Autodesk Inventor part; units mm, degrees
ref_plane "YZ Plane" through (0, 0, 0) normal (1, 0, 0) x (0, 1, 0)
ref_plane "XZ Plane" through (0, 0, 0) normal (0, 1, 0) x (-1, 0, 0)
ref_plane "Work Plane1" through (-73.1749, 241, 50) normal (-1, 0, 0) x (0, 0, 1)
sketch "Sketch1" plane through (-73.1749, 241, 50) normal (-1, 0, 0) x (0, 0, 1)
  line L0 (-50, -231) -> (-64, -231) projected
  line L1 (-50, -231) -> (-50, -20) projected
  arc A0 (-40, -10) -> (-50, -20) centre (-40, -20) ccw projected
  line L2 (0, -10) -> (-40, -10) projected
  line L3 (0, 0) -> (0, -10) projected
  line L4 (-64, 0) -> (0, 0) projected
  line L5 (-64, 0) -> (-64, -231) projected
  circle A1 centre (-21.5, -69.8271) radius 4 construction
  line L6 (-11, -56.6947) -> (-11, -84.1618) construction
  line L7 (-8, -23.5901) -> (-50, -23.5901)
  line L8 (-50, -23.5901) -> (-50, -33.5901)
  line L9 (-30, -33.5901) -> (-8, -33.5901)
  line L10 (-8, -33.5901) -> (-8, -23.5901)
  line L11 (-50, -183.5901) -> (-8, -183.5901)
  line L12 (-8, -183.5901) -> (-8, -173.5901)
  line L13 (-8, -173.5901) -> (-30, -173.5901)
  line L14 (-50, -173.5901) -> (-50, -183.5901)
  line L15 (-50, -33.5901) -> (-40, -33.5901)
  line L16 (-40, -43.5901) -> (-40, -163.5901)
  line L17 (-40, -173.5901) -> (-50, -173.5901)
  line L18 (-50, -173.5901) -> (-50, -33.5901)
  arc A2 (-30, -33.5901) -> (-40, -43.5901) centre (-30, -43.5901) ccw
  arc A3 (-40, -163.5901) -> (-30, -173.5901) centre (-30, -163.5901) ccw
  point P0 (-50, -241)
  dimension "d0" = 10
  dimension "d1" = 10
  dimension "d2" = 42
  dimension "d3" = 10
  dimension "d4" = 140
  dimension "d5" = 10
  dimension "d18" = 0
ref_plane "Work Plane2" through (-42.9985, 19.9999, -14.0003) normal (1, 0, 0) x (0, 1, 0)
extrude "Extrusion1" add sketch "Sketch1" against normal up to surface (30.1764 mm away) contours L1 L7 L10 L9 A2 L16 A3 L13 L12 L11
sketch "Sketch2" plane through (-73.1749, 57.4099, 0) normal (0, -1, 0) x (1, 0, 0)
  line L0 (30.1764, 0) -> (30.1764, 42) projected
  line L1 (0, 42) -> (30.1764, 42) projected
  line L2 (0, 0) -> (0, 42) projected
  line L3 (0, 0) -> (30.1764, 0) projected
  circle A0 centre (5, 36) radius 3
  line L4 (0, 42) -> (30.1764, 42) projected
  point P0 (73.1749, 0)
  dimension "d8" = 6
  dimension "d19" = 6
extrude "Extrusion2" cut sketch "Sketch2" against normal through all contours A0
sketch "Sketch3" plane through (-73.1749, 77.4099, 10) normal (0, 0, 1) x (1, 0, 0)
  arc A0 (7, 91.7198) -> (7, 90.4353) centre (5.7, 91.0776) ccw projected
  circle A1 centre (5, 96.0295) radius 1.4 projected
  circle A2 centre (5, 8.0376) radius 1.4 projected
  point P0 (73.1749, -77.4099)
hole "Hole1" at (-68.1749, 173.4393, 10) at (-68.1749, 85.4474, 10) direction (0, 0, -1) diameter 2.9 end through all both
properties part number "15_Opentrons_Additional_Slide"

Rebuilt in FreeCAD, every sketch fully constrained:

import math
import FreeCAD as App
import Part
import Sketcher

V = App.Vector
Q = App.Units.Quantity

doc = App.newDocument("Part")
params = doc.addObject("Spreadsheet::Sheet", "Params")
for row, (alias, value) in enumerate([
    ("sketch1_radius", "10 mm"),
    ("sketch1_width", "10 mm"),
    ("sketch1_height", "42 mm"),
    ("pad1_length", "30.1764 mm"),
    ("sketch2_diameter", "6 mm"),
    ("sketch3_diameter", "2.9 mm"),
    ("hole_diameter", "2.9 mm"),
], start=1):
    params.set(f"A{row}", alias)
    params.set(f"B{row}", "=" + value)
    params.setAlias(f"B{row}", alias)

body = doc.addObject("PartDesign::Body", "Body")

sketch1 = body.newObject("Sketcher::SketchObject", "Sketch")
sketch1.AttachmentSupport = (doc.getObject("YZ_Plane"), [""])
sketch1.MapMode = "FlatFace"
sketch1.AttachmentOffset = App.Placement(V(0, 0, -73.1749), App.Rotation())
sketch1.addGeometry([
    Part.LineSegment(V(217, 0, 0), V(57, 0, 0)),
    Part.LineSegment(V(57, 0, 0), V(57, 42, 0)),
    Part.LineSegment(V(57, 42, 0), V(67, 42, 0)),
    Part.LineSegment(V(67, 42, 0), V(67, 20, 0)),
    Part.ArcOfCircle(Part.Circle(V(77, 20, 0), V(0, 0, 1), 10), math.radians(180), math.radians(270)),
    Part.LineSegment(V(77, 10, 0), V(197, 10, 0)),
    Part.ArcOfCircle(Part.Circle(V(197, 20, 0), V(0, 0, 1), 10), math.radians(-90), math.radians(0)),
    Part.LineSegment(V(207, 20, 0), V(207, 42, 0)),
    Part.LineSegment(V(207, 42, 0), V(217, 42, 0)),
    Part.LineSegment(V(217, 42, 0), V(217, 0, 0)),
], False)
sketch1.addConstraint([
    Sketcher.Constraint("Coincident", 0, 2, 1, 1),
    Sketcher.Constraint("Coincident", 1, 2, 2, 1),
    Sketcher.Constraint("Coincident", 2, 2, 3, 1),
    Sketcher.Constraint("Tangent", 3, 2, 4, 1),
    Sketcher.Constraint("Tangent", 4, 2, 5, 1),
    Sketcher.Constraint("Tangent", 5, 2, 6, 1),
    Sketcher.Constraint("Tangent", 6, 2, 7, 1),
    Sketcher.Constraint("Coincident", 7, 2, 8, 1),
    Sketcher.Constraint("Coincident", 8, 2, 9, 1),
    Sketcher.Constraint("Coincident", 9, 2, 0, 1),
    Sketcher.Constraint("Horizontal", 0),
    Sketcher.Constraint("Vertical", 1),
    Sketcher.Constraint("Horizontal", 2),
    Sketcher.Constraint("Vertical", 3),
    Sketcher.Constraint("Horizontal", 5),
    Sketcher.Constraint("Vertical", 7),
    Sketcher.Constraint("Horizontal", 8),
    Sketcher.Constraint("Vertical", 9),
    Sketcher.Constraint("Equal", 4, 6),
    Sketcher.Constraint("PointOnObject", 0, 2, -1),
    Sketcher.Constraint("Horizontal", 2, 2, 7, 2),
    Sketcher.Constraint("Equal", 2, 8),
    Sketcher.Constraint("Radius", 4, Q("10 mm")),
    Sketcher.Constraint("DistanceX", 2, 1, 2, 2, Q("10 mm")),
    Sketcher.Constraint("DistanceY", 1, 1, 1, 2, Q("42 mm")),
    Sketcher.Constraint("DistanceY", -1, 1, 4, 2, Q("10 mm")),
    Sketcher.Constraint("DistanceX", 0, 2, 6, 3, Q("140 mm")),
    Sketcher.Constraint("DistanceX", -1, 1, 4, 3, Q("77.41 mm")),
])
sketch1.setExpression("Constraints[22]", "Params.sketch1_radius")
sketch1.setExpression("Constraints[23]", "Params.sketch1_width")
sketch1.setExpression("Constraints[24]", "Params.sketch1_height")
pad1 = body.newObject("PartDesign::Pad", "Pad")
pad1.Profile = sketch1
pad1.setExpression("Length", "Params.pad1_length")

sketch2 = body.newObject("Sketcher::SketchObject", "Sketch001")
sketch2.AttachmentSupport = (doc.getObject("XZ_Plane"), [""])
sketch2.MapMode = "FlatFace"
sketch2.AttachmentOffset = App.Placement(V(0, 0, -57.4099), App.Rotation())
sketch2.addGeometry(Part.Circle(V(-68.2, 36, 0), V(0, 0, 1), 3), False)
sketch2.addConstraint([
    Sketcher.Constraint("Diameter", 0, Q("6 mm")),
    Sketcher.Constraint("DistanceY", -1, 1, 0, 3, Q("36 mm")),
    Sketcher.Constraint("DistanceX", 0, 3, -1, 1, Q("68.175 mm")),
])
sketch2.setExpression("Constraints[0]", "Params.sketch2_diameter")
pocket1 = body.newObject("PartDesign::Pocket", "Pocket")
pocket1.Profile = sketch2
pocket1.Type = "ThroughAll"

sketch3 = body.newObject("Sketcher::SketchObject", "Sketch002")
sketch3.AttachmentSupport = (doc.getObject("XY_Plane"), [""])
sketch3.MapMode = "FlatFace"
sketch3.AttachmentOffset = App.Placement(V(0, 0, 10), App.Rotation())
sketch3.addGeometry([
    Part.Circle(V(-68.2, 173.4, 0), V(0, 0, 1), 1.4),
    Part.Circle(V(-68.2, 85.4, 0), V(0, 0, 1), 1.4),
], False)
sketch3.addConstraint([
    Sketcher.Constraint("Equal", 0, 1),
    Sketcher.Constraint("Vertical", 0, 3, 1, 3),
    Sketcher.Constraint("Diameter", 0, Q("2.9 mm")),
    Sketcher.Constraint("DistanceX", 0, 3, -1, 1, Q("68.175 mm")),
    Sketcher.Constraint("DistanceY", 1, 3, 0, 3, Q("87.992 mm")),
    Sketcher.Constraint("DistanceY", -1, 1, 0, 3, Q("173.4393 mm")),
])
sketch3.setExpression("Constraints[2]", "Params.sketch3_diameter")
doc.recompute()
hole = body.newObject("PartDesign::Hole", "Hole")
hole.Profile = sketch3
hole.ThreadType = "None"
hole.setExpression("Diameter", "Params.hole_diameter")
hole.DepthType = "ThroughAll"

doc.recompute()
